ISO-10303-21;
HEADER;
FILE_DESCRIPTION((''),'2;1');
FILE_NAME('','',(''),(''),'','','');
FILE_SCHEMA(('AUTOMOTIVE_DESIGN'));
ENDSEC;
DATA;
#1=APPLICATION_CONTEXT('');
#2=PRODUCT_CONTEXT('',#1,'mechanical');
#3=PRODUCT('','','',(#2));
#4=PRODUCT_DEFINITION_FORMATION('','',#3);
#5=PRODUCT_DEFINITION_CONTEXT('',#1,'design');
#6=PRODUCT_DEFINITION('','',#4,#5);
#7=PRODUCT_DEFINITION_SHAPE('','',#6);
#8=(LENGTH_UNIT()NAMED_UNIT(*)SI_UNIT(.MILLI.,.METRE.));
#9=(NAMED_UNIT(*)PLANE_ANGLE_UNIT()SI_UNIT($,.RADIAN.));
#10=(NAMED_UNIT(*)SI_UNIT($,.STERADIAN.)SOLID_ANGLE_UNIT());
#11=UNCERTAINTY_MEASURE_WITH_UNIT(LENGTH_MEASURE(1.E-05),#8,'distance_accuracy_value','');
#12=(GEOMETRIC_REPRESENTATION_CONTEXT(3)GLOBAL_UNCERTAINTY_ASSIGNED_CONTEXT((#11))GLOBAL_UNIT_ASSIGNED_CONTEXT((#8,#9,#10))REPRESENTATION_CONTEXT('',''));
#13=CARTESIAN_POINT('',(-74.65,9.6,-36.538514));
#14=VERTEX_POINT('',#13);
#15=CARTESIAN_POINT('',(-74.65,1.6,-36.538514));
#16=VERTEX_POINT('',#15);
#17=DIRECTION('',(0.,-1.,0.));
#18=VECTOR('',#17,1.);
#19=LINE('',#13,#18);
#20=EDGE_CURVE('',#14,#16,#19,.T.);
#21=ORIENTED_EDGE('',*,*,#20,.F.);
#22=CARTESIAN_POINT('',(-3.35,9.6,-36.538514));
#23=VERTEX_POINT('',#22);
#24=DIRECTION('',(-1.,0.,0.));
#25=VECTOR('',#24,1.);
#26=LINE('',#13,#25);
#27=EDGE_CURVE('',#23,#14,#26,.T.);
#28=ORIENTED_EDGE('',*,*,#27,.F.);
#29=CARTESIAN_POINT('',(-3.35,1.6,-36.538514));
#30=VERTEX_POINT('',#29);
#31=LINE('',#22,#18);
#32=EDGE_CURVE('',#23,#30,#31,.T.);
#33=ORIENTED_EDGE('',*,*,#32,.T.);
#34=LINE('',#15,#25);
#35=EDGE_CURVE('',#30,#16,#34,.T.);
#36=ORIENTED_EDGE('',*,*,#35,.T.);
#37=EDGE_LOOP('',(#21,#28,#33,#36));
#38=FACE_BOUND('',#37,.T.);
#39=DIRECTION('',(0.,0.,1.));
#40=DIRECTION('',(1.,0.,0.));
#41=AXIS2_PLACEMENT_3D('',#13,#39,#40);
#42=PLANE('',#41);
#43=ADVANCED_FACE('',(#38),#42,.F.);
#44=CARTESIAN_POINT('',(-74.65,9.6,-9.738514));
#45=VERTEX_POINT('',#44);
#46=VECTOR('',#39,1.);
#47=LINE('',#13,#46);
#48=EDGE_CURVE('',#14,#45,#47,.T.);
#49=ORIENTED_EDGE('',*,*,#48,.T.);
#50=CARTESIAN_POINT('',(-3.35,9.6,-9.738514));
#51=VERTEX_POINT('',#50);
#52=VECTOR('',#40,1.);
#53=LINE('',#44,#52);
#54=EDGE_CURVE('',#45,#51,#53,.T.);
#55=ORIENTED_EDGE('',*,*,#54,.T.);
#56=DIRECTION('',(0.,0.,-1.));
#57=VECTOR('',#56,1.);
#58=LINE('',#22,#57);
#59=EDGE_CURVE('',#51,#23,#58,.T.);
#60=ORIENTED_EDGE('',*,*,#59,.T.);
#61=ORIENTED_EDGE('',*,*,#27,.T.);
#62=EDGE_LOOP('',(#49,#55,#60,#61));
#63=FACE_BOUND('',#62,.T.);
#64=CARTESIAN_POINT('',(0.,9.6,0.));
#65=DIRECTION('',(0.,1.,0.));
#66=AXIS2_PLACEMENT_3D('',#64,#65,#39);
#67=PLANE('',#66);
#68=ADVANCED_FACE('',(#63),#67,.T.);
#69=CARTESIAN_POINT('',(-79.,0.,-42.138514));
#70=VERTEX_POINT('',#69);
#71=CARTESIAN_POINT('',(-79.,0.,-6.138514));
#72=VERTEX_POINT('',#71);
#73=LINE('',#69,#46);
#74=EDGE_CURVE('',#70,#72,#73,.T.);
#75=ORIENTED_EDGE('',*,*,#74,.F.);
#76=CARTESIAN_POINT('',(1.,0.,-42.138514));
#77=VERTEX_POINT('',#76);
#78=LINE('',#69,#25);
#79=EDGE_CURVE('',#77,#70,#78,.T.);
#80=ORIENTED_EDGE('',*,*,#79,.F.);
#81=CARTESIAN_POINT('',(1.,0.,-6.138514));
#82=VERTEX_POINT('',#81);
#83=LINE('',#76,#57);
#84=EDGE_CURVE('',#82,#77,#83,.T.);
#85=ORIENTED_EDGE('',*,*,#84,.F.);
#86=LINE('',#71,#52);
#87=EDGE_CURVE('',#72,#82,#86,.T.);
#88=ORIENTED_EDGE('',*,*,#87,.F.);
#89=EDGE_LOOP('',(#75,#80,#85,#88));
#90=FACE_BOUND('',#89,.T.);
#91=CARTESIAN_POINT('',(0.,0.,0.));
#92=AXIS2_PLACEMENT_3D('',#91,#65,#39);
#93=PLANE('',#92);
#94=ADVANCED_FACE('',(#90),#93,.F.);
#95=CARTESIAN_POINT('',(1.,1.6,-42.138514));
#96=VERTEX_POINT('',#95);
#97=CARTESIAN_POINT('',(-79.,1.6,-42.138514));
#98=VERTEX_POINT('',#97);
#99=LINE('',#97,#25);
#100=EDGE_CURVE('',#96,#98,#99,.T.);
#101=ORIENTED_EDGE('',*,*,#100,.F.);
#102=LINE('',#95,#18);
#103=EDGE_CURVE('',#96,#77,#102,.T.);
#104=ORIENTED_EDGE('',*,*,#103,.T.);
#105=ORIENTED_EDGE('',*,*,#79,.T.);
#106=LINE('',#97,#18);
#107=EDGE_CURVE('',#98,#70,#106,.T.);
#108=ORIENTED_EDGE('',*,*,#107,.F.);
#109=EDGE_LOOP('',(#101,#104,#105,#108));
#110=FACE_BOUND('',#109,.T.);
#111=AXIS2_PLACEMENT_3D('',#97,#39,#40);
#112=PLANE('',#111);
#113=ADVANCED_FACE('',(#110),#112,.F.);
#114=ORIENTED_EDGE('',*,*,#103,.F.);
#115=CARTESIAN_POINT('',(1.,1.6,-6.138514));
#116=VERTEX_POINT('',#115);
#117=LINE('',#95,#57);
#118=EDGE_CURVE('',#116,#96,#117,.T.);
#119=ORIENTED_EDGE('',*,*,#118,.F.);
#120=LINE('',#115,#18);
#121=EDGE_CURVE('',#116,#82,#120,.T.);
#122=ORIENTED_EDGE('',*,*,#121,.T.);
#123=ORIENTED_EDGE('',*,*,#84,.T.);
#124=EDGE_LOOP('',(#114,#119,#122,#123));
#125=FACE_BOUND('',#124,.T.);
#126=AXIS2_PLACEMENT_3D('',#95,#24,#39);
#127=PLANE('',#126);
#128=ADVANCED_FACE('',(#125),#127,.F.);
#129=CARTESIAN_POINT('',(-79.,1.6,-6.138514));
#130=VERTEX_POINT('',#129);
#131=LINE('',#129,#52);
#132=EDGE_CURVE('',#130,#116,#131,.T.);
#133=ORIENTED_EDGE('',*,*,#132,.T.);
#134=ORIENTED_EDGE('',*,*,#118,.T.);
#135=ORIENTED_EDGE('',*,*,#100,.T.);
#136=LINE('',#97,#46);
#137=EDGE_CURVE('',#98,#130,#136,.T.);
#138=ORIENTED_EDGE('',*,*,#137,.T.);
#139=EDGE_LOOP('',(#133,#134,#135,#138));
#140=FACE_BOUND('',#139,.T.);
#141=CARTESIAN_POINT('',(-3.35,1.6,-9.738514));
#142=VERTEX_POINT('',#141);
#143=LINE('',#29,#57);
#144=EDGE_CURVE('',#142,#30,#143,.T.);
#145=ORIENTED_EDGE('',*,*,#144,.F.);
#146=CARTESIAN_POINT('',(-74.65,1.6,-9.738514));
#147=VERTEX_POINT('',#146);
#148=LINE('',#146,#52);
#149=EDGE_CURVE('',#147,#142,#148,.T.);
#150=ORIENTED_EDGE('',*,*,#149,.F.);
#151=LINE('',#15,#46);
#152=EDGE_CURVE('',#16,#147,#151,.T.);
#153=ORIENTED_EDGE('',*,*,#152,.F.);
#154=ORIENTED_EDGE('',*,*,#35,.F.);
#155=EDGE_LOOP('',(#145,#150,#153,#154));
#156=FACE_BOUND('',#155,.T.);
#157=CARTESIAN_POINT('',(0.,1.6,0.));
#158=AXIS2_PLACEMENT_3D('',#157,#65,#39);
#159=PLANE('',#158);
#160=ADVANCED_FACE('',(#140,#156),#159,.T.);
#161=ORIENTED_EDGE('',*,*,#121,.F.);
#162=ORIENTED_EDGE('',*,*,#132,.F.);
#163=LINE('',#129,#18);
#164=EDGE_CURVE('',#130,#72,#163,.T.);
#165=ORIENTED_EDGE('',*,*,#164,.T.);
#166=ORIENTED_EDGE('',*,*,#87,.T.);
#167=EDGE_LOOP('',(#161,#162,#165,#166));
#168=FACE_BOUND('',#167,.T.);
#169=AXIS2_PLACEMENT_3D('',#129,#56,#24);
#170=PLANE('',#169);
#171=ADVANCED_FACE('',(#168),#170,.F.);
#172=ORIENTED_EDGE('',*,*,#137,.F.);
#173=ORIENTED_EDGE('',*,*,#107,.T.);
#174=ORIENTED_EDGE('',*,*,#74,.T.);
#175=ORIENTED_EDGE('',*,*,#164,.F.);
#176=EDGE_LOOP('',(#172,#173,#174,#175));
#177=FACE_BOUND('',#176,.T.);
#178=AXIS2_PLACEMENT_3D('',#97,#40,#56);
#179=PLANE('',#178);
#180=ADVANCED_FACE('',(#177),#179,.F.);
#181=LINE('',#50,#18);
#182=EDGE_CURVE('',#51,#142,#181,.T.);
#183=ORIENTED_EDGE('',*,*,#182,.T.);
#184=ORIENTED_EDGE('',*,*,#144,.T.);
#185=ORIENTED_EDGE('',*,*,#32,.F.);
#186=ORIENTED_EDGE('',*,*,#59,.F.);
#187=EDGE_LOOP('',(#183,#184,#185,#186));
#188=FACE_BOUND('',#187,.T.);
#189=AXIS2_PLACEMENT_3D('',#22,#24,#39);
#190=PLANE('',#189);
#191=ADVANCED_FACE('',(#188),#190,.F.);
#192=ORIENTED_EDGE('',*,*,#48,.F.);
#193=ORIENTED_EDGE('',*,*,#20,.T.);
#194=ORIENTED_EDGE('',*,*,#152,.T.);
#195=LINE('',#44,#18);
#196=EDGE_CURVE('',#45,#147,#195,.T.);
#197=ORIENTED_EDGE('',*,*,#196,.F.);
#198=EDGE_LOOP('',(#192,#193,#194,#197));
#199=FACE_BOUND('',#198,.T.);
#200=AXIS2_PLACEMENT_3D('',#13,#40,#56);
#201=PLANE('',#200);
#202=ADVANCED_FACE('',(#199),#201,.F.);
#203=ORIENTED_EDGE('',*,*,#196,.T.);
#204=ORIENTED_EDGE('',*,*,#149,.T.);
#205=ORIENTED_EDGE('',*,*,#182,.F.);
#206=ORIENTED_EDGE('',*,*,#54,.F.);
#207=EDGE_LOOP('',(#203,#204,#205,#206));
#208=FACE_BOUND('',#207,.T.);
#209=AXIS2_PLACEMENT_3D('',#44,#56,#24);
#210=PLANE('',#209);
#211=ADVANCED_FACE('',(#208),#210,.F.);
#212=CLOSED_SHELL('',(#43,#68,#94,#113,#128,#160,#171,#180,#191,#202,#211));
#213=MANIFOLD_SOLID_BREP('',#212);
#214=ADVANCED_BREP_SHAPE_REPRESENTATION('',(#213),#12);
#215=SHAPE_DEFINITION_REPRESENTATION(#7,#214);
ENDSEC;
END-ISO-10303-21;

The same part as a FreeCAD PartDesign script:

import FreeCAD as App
import Part
import Sketcher
from FreeCAD import Vector
Q = App.Units.Quantity

doc = App.newDocument("Part")
body = doc.addObject("PartDesign::Body", "Body")

sketch1 = body.newObject("Sketcher::SketchObject", "Sketch")
sketch1.AttachmentSupport = (doc.getObject("XZ_Plane"), [""])
sketch1.MapMode = "FlatFace"
sketch1.addGeometry(Part.LineSegment(Vector(-79, -42.138514, 0), Vector(-79, -6.138514, 0)), False)
sketch1.addGeometry(Part.LineSegment(Vector(-79, -6.138514, 0), Vector(1, -6.138514, 0)), False)
sketch1.addGeometry(Part.LineSegment(Vector(1, -6.138514, 0), Vector(1, -42.138514, 0)), False)
sketch1.addGeometry(Part.LineSegment(Vector(1, -42.138514, 0), Vector(-79, -42.138514, 0)), False)
sketch1.addConstraint(Sketcher.Constraint("Coincident", 0, 2, 1, 1))
sketch1.addConstraint(Sketcher.Constraint("Coincident", 1, 2, 2, 1))
sketch1.addConstraint(Sketcher.Constraint("Coincident", 2, 2, 3, 1))
sketch1.addConstraint(Sketcher.Constraint("Coincident", 3, 2, 0, 1))
sketch1.addConstraint(Sketcher.Constraint("Vertical", 0))
sketch1.addConstraint(Sketcher.Constraint("Horizontal", 1))
sketch1.addConstraint(Sketcher.Constraint("Vertical", 2))
sketch1.addConstraint(Sketcher.Constraint("Horizontal", 3))
sketch1.addConstraint(Sketcher.Constraint("DistanceX", 1, 1, 1, 2, Q("80 mm")))
sketch1.addConstraint(Sketcher.Constraint("DistanceY", 0, 1, 0, 2, Q("36 mm")))
sketch1.addConstraint(Sketcher.Constraint("DistanceX", 0, 2, -1, 1, Q("79 mm")))
sketch1.addConstraint(Sketcher.Constraint("DistanceY", 0, 2, -1, 1, Q("6.138514 mm")))
pad1 = body.newObject("PartDesign::Pad", "Pad")
pad1.Profile = sketch1
pad1.Length = 1.6
pad1.Reversed = True

sketch2 = body.newObject("Sketcher::SketchObject", "Sketch001")
sketch2.AttachmentSupport = (doc.getObject("XZ_Plane"), [""])
sketch2.MapMode = "FlatFace"
sketch2.AttachmentOffset = App.Placement(Vector(0, 0, -1.6), App.Rotation())
sketch2.addGeometry(Part.LineSegment(Vector(-74.65, -36.538514, 0), Vector(-74.65, -9.738514, 0)), False)
sketch2.addGeometry(Part.LineSegment(Vector(-74.65, -9.738514, 0), Vector(-3.35, -9.738514, 0)), False)
sketch2.addGeometry(Part.LineSegment(Vector(-3.35, -9.738514, 0), Vector(-3.35, -36.538514, 0)), False)
sketch2.addGeometry(Part.LineSegment(Vector(-3.35, -36.538514, 0), Vector(-74.65, -36.538514, 0)), False)
sketch2.addConstraint(Sketcher.Constraint("Coincident", 0, 2, 1, 1))
sketch2.addConstraint(Sketcher.Constraint("Coincident", 1, 2, 2, 1))
sketch2.addConstraint(Sketcher.Constraint("Coincident", 2, 2, 3, 1))
sketch2.addConstraint(Sketcher.Constraint("Coincident", 3, 2, 0, 1))
sketch2.addConstraint(Sketcher.Constraint("Vertical", 0))
sketch2.addConstraint(Sketcher.Constraint("Horizontal", 1))
sketch2.addConstraint(Sketcher.Constraint("Vertical", 2))
sketch2.addConstraint(Sketcher.Constraint("Horizontal", 3))
sketch2.addConstraint(Sketcher.Constraint("DistanceX", 1, 1, 1, 2, Q("71.3 mm")))
sketch2.addConstraint(Sketcher.Constraint("DistanceY", 0, 1, 0, 2, Q("26.8 mm")))
sketch2.addConstraint(Sketcher.Constraint("DistanceX", 0, 2, -1, 1, Q("74.65 mm")))
sketch2.addConstraint(Sketcher.Constraint("DistanceY", 0, 2, -1, 1, Q("9.738514 mm")))
pad2 = body.newObject("PartDesign::Pad", "Pad001")
pad2.Profile = sketch2
pad2.Length = 8
pad2.Reversed = True

doc.recompute()
